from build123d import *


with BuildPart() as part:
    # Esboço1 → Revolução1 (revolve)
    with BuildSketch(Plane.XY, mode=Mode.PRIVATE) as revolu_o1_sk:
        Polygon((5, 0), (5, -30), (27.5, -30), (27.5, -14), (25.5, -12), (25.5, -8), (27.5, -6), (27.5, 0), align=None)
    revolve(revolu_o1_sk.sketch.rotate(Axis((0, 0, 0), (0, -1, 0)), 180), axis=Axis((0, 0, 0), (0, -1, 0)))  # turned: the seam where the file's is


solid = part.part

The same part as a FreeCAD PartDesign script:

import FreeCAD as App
import Part
import Sketcher
from FreeCAD import Vector

doc = App.newDocument("Part")
body = doc.addObject("PartDesign::Body", "Body")

sketch1 = body.newObject("Sketcher::SketchObject", "Sketch")
sketch1.AttachmentSupport = (doc.getObject("XY_Plane"), [""])
sketch1.MapMode = "FlatFace"
sketch1.addGeometry([
    Part.LineSegment(Vector(5, 0, 0), Vector(5, -30, 0)),
    Part.LineSegment(Vector(5, -30, 0), Vector(27.5, -30, 0)),
    Part.LineSegment(Vector(27.5, -30, 0), Vector(27.5, -14, 0)),
    Part.LineSegment(Vector(27.5, -14, 0), Vector(25.5, -12, 0)),
    Part.LineSegment(Vector(25.5, -12, 0), Vector(25.5, -8, 0)),
    Part.LineSegment(Vector(25.5, -8, 0), Vector(27.5, -6, 0)),
    Part.LineSegment(Vector(27.5, -6, 0), Vector(27.5, 0, 0)),
    Part.LineSegment(Vector(27.5, 0, 0), Vector(5, 0, 0)),
], False)
sketch1.addConstraint([
    Sketcher.Constraint("Coincident", 0, 2, 1, 1),
    Sketcher.Constraint("Coincident", 1, 2, 2, 1),
    Sketcher.Constraint("Coincident", 2, 2, 3, 1),
    Sketcher.Constraint("Coincident", 3, 2, 4, 1),
    Sketcher.Constraint("Coincident", 4, 2, 5, 1),
    Sketcher.Constraint("Coincident", 5, 2, 6, 1),
    Sketcher.Constraint("Coincident", 6, 2, 7, 1),
    Sketcher.Constraint("Coincident", 7, 2, 0, 1),
    Sketcher.Constraint("Vertical", 0),
    Sketcher.Constraint("Horizontal", 1),
    Sketcher.Constraint("Vertical", 2),
    Sketcher.Constraint("Vertical", 4),
    Sketcher.Constraint("Vertical", 6),
    Sketcher.Constraint("Horizontal", 7),
    Sketcher.Constraint("PointOnObject", 6, 2, -1),
    Sketcher.Constraint("Perpendicular", 3, 5),
    Sketcher.Constraint("Vertical", 2, 2, 5, 2),
    Sketcher.Constraint("Equal", 3, 5),
    Sketcher.Constraint("DistanceY", 0, 2, 0, 1, 30.0),
    Sketcher.Constraint("DistanceY", 2, 1, 2, 2, 16.0),
    Sketcher.Constraint("DistanceY", 4, 1, 4, 2, 4.0),
    Sketcher.Constraint("DistanceY", 6, 1, 6, 2, 6.0),
    Sketcher.Constraint("DistanceX", 1, 1, 1, 2, 22.5),
    Sketcher.Constraint("DistanceX", -1, 1, 0, 2, 5.0),
])
revolution = body.newObject("PartDesign::Revolution", "Revolution")
revolution.Profile = sketch1
revolution.ReferenceAxis = (sketch1, ["V_Axis"])
revolution.Angle = 360

doc.recompute()
